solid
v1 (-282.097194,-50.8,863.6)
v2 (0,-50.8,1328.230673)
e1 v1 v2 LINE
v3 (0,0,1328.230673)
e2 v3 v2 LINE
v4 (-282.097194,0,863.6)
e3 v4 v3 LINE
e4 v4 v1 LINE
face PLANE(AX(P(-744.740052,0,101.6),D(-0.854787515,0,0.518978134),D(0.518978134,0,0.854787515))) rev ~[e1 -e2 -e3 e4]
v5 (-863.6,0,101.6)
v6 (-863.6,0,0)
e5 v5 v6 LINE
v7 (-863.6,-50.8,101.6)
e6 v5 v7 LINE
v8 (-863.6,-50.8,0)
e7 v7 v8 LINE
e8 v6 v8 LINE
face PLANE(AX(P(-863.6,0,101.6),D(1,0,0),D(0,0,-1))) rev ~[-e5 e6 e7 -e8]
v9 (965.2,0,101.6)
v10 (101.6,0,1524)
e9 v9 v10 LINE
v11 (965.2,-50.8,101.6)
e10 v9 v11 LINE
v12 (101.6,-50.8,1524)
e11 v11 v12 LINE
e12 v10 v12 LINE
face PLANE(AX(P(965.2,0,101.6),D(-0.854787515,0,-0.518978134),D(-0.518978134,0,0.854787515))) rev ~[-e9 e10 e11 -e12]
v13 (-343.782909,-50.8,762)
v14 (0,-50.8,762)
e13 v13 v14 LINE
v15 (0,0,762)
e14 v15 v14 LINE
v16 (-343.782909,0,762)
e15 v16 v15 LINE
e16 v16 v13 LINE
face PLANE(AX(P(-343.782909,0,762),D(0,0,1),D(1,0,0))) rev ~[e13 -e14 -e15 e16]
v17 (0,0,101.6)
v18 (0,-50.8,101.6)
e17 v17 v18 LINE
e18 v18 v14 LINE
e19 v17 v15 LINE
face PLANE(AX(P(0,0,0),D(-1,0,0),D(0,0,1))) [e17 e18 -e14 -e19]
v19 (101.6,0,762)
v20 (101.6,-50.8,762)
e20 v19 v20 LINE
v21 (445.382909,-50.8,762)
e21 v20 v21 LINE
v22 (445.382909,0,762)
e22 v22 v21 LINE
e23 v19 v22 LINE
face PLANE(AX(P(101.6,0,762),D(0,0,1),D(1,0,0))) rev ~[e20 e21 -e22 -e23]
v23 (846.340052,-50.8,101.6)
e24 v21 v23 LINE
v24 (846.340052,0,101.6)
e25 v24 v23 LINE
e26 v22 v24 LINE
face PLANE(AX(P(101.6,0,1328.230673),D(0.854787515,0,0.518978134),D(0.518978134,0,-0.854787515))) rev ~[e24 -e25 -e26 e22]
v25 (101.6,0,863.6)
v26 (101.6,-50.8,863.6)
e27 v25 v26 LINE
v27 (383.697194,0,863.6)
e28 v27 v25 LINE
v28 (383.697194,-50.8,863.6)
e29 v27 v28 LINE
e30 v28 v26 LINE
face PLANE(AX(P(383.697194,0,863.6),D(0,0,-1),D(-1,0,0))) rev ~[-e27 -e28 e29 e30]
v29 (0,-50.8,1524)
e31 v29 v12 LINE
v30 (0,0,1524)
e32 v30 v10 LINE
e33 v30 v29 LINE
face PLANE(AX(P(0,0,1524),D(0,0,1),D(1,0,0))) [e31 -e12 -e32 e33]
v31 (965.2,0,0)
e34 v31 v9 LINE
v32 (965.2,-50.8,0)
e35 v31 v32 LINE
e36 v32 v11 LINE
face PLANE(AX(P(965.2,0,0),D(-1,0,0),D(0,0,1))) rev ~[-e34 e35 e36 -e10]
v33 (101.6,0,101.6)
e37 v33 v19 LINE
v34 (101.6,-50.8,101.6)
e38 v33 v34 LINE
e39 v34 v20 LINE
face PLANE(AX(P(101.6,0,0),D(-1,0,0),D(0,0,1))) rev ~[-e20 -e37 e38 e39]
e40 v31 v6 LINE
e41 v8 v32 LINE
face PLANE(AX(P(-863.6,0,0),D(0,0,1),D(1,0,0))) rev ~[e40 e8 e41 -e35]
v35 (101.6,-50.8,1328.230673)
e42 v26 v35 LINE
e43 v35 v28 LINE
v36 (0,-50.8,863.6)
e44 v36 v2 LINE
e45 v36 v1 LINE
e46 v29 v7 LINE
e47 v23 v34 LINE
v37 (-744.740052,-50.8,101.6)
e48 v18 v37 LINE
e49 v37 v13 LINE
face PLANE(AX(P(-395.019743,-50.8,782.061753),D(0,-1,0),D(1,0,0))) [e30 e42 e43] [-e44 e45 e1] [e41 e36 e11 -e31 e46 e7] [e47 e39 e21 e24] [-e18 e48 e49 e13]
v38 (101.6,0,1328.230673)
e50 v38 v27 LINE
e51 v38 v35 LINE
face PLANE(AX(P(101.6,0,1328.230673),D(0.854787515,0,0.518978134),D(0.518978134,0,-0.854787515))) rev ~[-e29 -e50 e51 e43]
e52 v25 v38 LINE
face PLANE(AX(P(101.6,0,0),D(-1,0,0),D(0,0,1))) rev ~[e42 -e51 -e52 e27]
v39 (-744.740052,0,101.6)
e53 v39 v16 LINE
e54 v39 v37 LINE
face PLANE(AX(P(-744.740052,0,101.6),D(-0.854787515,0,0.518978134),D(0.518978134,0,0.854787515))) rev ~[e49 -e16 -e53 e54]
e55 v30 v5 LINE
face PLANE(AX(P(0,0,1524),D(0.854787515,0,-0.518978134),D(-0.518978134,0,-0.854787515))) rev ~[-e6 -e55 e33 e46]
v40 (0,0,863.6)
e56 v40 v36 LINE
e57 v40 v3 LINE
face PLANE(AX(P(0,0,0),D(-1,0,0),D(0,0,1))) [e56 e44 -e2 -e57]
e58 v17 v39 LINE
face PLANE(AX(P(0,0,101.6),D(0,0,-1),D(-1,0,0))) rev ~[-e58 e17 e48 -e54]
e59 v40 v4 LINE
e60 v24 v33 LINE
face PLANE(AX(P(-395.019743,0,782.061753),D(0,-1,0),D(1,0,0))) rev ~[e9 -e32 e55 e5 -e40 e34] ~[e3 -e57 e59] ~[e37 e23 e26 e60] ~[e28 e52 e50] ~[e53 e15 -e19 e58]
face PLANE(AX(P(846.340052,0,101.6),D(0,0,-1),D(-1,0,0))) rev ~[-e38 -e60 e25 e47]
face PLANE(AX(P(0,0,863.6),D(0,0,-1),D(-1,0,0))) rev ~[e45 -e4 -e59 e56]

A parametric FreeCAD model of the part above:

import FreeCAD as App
import Part
import Sketcher
Q = App.Units.Quantity

doc = App.newDocument("Part")
body = doc.addObject("PartDesign::Body", "Body")

# Sketch on XZ plane
sketch1 = doc.addObject("Sketcher::SketchObject", "Sketch")
body.addObject(sketch1)
sketch1.AttachmentSupport = (doc.XZ_Plane, [""])
sketch1.MapMode = "FlatFace"
sketch1.addGeometry(Part.LineSegment(App.Vector(0, 1524, 0), App.Vector(0, 0, 0)), False)
sketch1.addGeometry(Part.LineSegment(App.Vector(0, 0, 0), App.Vector(101.6, 0, 0)), False)
sketch1.addGeometry(Part.LineSegment(App.Vector(101.6, 0, 0), App.Vector(101.6, 1524, 0)), False)
sketch1.addGeometry(Part.LineSegment(App.Vector(101.6, 1524, 0), App.Vector(0, 1524, 0)), False)
sketch1.addConstraint(Sketcher.Constraint("Coincident", 0, 2, 1, 1))
sketch1.addConstraint(Sketcher.Constraint("Coincident", 1, 2, 2, 1))
sketch1.addConstraint(Sketcher.Constraint("Coincident", 2, 2, 3, 1))
sketch1.addConstraint(Sketcher.Constraint("Coincident", 3, 2, 0, 1))
sketch1.addConstraint(Sketcher.Constraint("Vertical", 0))
sketch1.addConstraint(Sketcher.Constraint("Horizontal", 1))
sketch1.addConstraint(Sketcher.Constraint("Vertical", 2))
sketch1.addConstraint(Sketcher.Constraint("Horizontal", 3))
sketch1.addConstraint(Sketcher.Constraint("Coincident", 0, 2, -1, 1))
sketch1.addConstraint(Sketcher.Constraint("DistanceX", 1, 1, 1, 2, Q("4 in")))
sketch1.addConstraint(Sketcher.Constraint("DistanceY", 0, 2, 0, 1, Q("60 in")))
pad1 = doc.addObject("PartDesign::Pad", "Pad")
body.addObject(pad1)
pad1.Profile = sketch1
pad1.Length = Q("2 in")

# Sketch on XZ plane
sketch2 = doc.addObject("Sketcher::SketchObject", "Sketch001")
body.addObject(sketch2)
sketch2.AttachmentSupport = (doc.XZ_Plane, [""])
sketch2.MapMode = "FlatFace"
sketch2.addGeometry(Part.LineSegment(App.Vector(0, 1524, 0), App.Vector(-863.6, 101.6, 0)), False)
sketch2.addGeometry(Part.LineSegment(App.Vector(-863.6, 101.6, 0), App.Vector(-863.6, 0, 0)), False)
sketch2.addGeometry(Part.LineSegment(App.Vector(-863.6, 0, 0), App.Vector(0, 0, 0)), False)
sketch2.addGeometry(Part.LineSegment(App.Vector(0, 0, 0), App.Vector(0, 101.6, 0)), False)
sketch2.addGeometry(Part.LineSegment(App.Vector(0, 101.6, 0), App.Vector(-744.740052, 101.6, 0)), False)
sketch2.addGeometry(Part.LineSegment(App.Vector(-744.740052, 101.6, 0), App.Vector(0, 1328.230673, 0)), False)
sketch2.addGeometry(Part.LineSegment(App.Vector(0, 1328.230673, 0), App.Vector(0, 1524, 0)), False)
sketch2.addGeometry(Part.LineSegment(App.Vector(101.6, 101.6, 0), App.Vector(101.6, 0, 0)), False)
sketch2.addGeometry(Part.LineSegment(App.Vector(101.6, 0, 0), App.Vector(965.2, 0, 0)), False)
sketch2.addGeometry(Part.LineSegment(App.Vector(965.2, 0, 0), App.Vector(965.2, 101.6, 0)), False)
sketch2.addGeometry(Part.LineSegment(App.Vector(965.2, 101.6, 0), App.Vector(101.6, 1524, 0)), False)
sketch2.addGeometry(Part.LineSegment(App.Vector(101.6, 1524, 0), App.Vector(101.6, 1328.230673, 0)), False)
sketch2.addGeometry(Part.LineSegment(App.Vector(101.6, 1328.230673, 0), App.Vector(846.340052, 101.6, 0)), False)
sketch2.addGeometry(Part.LineSegment(App.Vector(846.340052, 101.6, 0), App.Vector(101.6, 101.6, 0)), False)
sketch2.addConstraint(Sketcher.Constraint("Coincident", 0, 2, 1, 1))
sketch2.addConstraint(Sketcher.Constraint("Coincident", 1, 2, 2, 1))
sketch2.addConstraint(Sketcher.Constraint("Coincident", 2, 2, 3, 1))
sketch2.addConstraint(Sketcher.Constraint("Coincident", 3, 2, 4, 1))
sketch2.addConstraint(Sketcher.Constraint("Coincident", 4, 2, 5, 1))
sketch2.addConstraint(Sketcher.Constraint("Coincident", 5, 2, 6, 1))
sketch2.addConstraint(Sketcher.Constraint("Coincident", 6, 2, 0, 1))
sketch2.addConstraint(Sketcher.Constraint("Coincident", 7, 2, 8, 1))
sketch2.addConstraint(Sketcher.Constraint("Coincident", 8, 2, 9, 1))
sketch2.addConstraint(Sketcher.Constraint("Coincident", 9, 2, 10, 1))
sketch2.addConstraint(Sketcher.Constraint("Coincident", 10, 2, 11, 1))
sketch2.addConstraint(Sketcher.Constraint("Coincident", 11, 2, 12, 1))
sketch2.addConstraint(Sketcher.Constraint("Coincident", 12, 2, 13, 1))
sketch2.addConstraint(Sketcher.Constraint("Coincident", 13, 2, 7, 1))
sketch2.addConstraint(Sketcher.Constraint("Vertical", 1))
sketch2.addConstraint(Sketcher.Constraint("Horizontal", 2))
sketch2.addConstraint(Sketcher.Constraint("Vertical", 3))
sketch2.addConstraint(Sketcher.Constraint("Horizontal", 4))
sketch2.addConstraint(Sketcher.Constraint("Vertical", 6))
sketch2.addConstraint(Sketcher.Constraint("Vertical", 7))
sketch2.addConstraint(Sketcher.Constraint("Horizontal", 8))
sketch2.addConstraint(Sketcher.Constraint("Vertical", 9))
sketch2.addConstraint(Sketcher.Constraint("Vertical", 11))
sketch2.addConstraint(Sketcher.Constraint("Horizontal", 13))
sketch2.addConstraint(Sketcher.Constraint("Coincident", 2, 2, -1, 1))
sketch2.addConstraint(Sketcher.Constraint("PointOnObject", 5, 2, -2))
sketch2.addConstraint(Sketcher.Constraint("PointOnObject", 7, 2, -1))
sketch2.addConstraint(Sketcher.Constraint("Parallel", 0, 5))
sketch2.addConstraint(Sketcher.Constraint("Parallel", 10, 12))
sketch2.addConstraint(Sketcher.Constraint("Horizontal", 0, 2, 3, 2))
sketch2.addConstraint(Sketcher.Constraint("Horizontal", 4, 2, 9, 2))
sketch2.addConstraint(Sketcher.Constraint("Horizontal", 6, 2, 10, 2))
sketch2.addConstraint(Sketcher.Constraint("Horizontal", 5, 2, 11, 2))
sketch2.addConstraint(Sketcher.Constraint("Horizontal", 9, 2, 12, 2))
sketch2.addConstraint(Sketcher.Constraint("Vertical", 7, 2, 10, 2))
sketch2.addConstraint(Sketcher.Constraint("Equal", 2, 8))
sketch2.addConstraint(Sketcher.Constraint("DistanceX", 2, 1, 2, 2, Q("34 in")))
sketch2.addConstraint(Sketcher.Constraint("DistanceY", 1, 2, 1, 1, Q("4 in")))
sketch2.addConstraint(Sketcher.Constraint("DistanceY", -1, 1, 6, 2, Q("60 in")))
sketch2.addConstraint(Sketcher.Constraint("DistanceX", -1, 1, 7, 2, Q("4 in")))
sketch2.addConstraint(Sketcher.Constraint("DistanceX", 4, 2, 4, 1, Q("744.740052 mm")))
pad2 = doc.addObject("PartDesign::Pad", "Pad001")
body.addObject(pad2)
pad2.Profile = sketch2
pad2.Length = Q("2 in")

# Sketch on XZ plane
sketch3 = doc.addObject("Sketcher::SketchObject", "Sketch002")
body.addObject(sketch3)
sketch3.AttachmentSupport = (doc.XZ_Plane, [""])
sketch3.MapMode = "FlatFace"
sketch3.addGeometry(Part.LineSegment(App.Vector(-343.782909, 762, 0), App.Vector(0, 762, 0)), False)
sketch3.addGeometry(Part.LineSegment(App.Vector(0, 762, 0), App.Vector(0, 863.6, 0)), False)
sketch3.addGeometry(Part.LineSegment(App.Vector(0, 863.6, 0), App.Vector(-282.097194, 863.6, 0)), False)
sketch3.addGeometry(Part.LineSegment(App.Vector(-282.097194, 863.6, 0), App.Vector(-343.782909, 762, 0)), False)
sketch3.addGeometry(Part.LineSegment(App.Vector(383.697194, 863.6, 0), App.Vector(101.6, 863.6, 0)), False)
sketch3.addGeometry(Part.LineSegment(App.Vector(101.6, 863.6, 0), App.Vector(101.6, 762, 0)), False)
sketch3.addGeometry(Part.LineSegment(App.Vector(101.6, 762, 0), App.Vector(445.382909, 762, 0)), False)
sketch3.addGeometry(Part.LineSegment(App.Vector(445.382909, 762, 0), App.Vector(383.697194, 863.6, 0)), False)
sketch3.addConstraint(Sketcher.Constraint("Coincident", 0, 2, 1, 1))
sketch3.addConstraint(Sketcher.Constraint("Coincident", 1, 2, 2, 1))
sketch3.addConstraint(Sketcher.Constraint("Coincident", 2, 2, 3, 1))
sketch3.addConstraint(Sketcher.Constraint("Coincident", 3, 2, 0, 1))
sketch3.addConstraint(Sketcher.Constraint("Coincident", 4, 2, 5, 1))
sketch3.addConstraint(Sketcher.Constraint("Coincident", 5, 2, 6, 1))
sketch3.addConstraint(Sketcher.Constraint("Coincident", 6, 2, 7, 1))
sketch3.addConstraint(Sketcher.Constraint("Coincident", 7, 2, 4, 1))
sketch3.addConstraint(Sketcher.Constraint("Horizontal", 0))
sketch3.addConstraint(Sketcher.Constraint("Vertical", 1))
sketch3.addConstraint(Sketcher.Constraint("Horizontal", 2))
sketch3.addConstraint(Sketcher.Constraint("Horizontal", 4))
sketch3.addConstraint(Sketcher.Constraint("Vertical", 5))
sketch3.addConstraint(Sketcher.Constraint("Horizontal", 6))
sketch3.addConstraint(Sketcher.Constraint("PointOnObject", 0, 2, -2))
sketch3.addConstraint(Sketcher.Constraint("Horizontal", 2, 2, 4, 2))
sketch3.addConstraint(Sketcher.Constraint("Horizontal", 3, 2, 5, 2))
sketch3.addConstraint(Sketcher.Constraint("Equal", 2, 4))
sketch3.addConstraint(Sketcher.Constraint("Equal", 0, 6))
sketch3.addConstraint(Sketcher.Constraint("DistanceY", 1, 1, 1, 2, Q("4 in")))
sketch3.addConstraint(Sketcher.Constraint("DistanceY", -1, 1, 0, 2, Q("30 in")))
sketch3.addConstraint(Sketcher.Constraint("DistanceX", -1, 1, 4, 2, Q("4 in")))
sketch3.addConstraint(Sketcher.Constraint("DistanceX", 0, 1, 0, 2, Q("343.782909 mm")))
sketch3.addConstraint(Sketcher.Constraint("Distance", 3, Q("118.859948 mm")))
pad3 = doc.addObject("PartDesign::Pad", "Pad002")
body.addObject(pad3)
pad3.Profile = sketch3
pad3.Length = Q("2 in")

doc.recompute()
